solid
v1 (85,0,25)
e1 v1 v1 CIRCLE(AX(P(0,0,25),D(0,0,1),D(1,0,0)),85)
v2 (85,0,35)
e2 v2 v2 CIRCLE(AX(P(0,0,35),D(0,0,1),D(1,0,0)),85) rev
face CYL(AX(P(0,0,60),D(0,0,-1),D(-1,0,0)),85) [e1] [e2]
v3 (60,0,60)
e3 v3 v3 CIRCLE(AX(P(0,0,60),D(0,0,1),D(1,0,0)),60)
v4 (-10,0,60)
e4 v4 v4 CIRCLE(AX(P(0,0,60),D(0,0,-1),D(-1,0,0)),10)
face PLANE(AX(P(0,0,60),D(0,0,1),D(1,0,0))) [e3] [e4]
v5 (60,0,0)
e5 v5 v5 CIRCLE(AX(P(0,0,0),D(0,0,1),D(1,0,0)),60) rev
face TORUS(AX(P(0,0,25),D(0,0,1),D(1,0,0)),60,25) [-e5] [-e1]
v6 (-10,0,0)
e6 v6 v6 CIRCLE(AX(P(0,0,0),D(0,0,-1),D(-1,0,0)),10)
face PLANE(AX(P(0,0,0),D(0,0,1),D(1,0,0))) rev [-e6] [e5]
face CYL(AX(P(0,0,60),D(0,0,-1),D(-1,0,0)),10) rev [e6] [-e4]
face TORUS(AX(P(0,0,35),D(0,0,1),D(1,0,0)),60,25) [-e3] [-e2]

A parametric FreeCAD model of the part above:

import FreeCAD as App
import Part
import Sketcher
Q = App.Units.Quantity


def edges_at(feature, points):
    """Names of the edges that pass closest to the given points."""
    edges = feature.Shape.Edges
    near = lambda p: min(range(len(edges)), key=lambda i: edges[i].distToShape(Part.Vertex(*p))[0])
    return sorted({f"Edge{near(p) + 1}" for p in points})

doc = App.newDocument("Part")
body = doc.addObject("PartDesign::Body", "Body")

# Sketch on XY plane
sketch1 = body.newObject("Sketcher::SketchObject", "Sketch")
sketch1.AttachmentSupport = (doc.getObject("XY_Plane"), [""])
sketch1.MapMode = "FlatFace"
sketch1.addGeometry(Part.Circle(App.Vector(0, 0, 0), App.Vector(0, 0, 1), 85), False)
sketch1.addConstraint([
    Sketcher.Constraint("Coincident", 0, 3, -1, 1),
    Sketcher.Constraint("Diameter", 0, Q("170 mm")),
])
pad1 = body.newObject("PartDesign::Pad", "Pad")
pad1.Profile = sketch1
pad1.Length = 60
doc.recompute()

fillet = body.newObject("PartDesign::Fillet", "Fillet")
fillet.Base = (pad1, edges_at(pad1, [(-85, 0, 0), (-85, 0, 60)]))
fillet.Radius = 25

# Sketch on XY plane
sketch2 = body.newObject("Sketcher::SketchObject", "Sketch001")
sketch2.AttachmentSupport = (doc.getObject("XY_Plane"), [""])
sketch2.MapMode = "FlatFace"
sketch2.addGeometry(Part.Circle(App.Vector(0, 0, 0), App.Vector(0, 0, 1), 10), False)
sketch2.addConstraint([
    Sketcher.Constraint("Coincident", 0, 3, -1, 1),
    Sketcher.Constraint("Diameter", 0, Q("20 mm")),
])
pocket1 = body.newObject("PartDesign::Pocket", "Pocket")
pocket1.Profile = sketch2
pocket1.Type = "ThroughAll"
pocket1.Reversed = True

doc.recompute()
